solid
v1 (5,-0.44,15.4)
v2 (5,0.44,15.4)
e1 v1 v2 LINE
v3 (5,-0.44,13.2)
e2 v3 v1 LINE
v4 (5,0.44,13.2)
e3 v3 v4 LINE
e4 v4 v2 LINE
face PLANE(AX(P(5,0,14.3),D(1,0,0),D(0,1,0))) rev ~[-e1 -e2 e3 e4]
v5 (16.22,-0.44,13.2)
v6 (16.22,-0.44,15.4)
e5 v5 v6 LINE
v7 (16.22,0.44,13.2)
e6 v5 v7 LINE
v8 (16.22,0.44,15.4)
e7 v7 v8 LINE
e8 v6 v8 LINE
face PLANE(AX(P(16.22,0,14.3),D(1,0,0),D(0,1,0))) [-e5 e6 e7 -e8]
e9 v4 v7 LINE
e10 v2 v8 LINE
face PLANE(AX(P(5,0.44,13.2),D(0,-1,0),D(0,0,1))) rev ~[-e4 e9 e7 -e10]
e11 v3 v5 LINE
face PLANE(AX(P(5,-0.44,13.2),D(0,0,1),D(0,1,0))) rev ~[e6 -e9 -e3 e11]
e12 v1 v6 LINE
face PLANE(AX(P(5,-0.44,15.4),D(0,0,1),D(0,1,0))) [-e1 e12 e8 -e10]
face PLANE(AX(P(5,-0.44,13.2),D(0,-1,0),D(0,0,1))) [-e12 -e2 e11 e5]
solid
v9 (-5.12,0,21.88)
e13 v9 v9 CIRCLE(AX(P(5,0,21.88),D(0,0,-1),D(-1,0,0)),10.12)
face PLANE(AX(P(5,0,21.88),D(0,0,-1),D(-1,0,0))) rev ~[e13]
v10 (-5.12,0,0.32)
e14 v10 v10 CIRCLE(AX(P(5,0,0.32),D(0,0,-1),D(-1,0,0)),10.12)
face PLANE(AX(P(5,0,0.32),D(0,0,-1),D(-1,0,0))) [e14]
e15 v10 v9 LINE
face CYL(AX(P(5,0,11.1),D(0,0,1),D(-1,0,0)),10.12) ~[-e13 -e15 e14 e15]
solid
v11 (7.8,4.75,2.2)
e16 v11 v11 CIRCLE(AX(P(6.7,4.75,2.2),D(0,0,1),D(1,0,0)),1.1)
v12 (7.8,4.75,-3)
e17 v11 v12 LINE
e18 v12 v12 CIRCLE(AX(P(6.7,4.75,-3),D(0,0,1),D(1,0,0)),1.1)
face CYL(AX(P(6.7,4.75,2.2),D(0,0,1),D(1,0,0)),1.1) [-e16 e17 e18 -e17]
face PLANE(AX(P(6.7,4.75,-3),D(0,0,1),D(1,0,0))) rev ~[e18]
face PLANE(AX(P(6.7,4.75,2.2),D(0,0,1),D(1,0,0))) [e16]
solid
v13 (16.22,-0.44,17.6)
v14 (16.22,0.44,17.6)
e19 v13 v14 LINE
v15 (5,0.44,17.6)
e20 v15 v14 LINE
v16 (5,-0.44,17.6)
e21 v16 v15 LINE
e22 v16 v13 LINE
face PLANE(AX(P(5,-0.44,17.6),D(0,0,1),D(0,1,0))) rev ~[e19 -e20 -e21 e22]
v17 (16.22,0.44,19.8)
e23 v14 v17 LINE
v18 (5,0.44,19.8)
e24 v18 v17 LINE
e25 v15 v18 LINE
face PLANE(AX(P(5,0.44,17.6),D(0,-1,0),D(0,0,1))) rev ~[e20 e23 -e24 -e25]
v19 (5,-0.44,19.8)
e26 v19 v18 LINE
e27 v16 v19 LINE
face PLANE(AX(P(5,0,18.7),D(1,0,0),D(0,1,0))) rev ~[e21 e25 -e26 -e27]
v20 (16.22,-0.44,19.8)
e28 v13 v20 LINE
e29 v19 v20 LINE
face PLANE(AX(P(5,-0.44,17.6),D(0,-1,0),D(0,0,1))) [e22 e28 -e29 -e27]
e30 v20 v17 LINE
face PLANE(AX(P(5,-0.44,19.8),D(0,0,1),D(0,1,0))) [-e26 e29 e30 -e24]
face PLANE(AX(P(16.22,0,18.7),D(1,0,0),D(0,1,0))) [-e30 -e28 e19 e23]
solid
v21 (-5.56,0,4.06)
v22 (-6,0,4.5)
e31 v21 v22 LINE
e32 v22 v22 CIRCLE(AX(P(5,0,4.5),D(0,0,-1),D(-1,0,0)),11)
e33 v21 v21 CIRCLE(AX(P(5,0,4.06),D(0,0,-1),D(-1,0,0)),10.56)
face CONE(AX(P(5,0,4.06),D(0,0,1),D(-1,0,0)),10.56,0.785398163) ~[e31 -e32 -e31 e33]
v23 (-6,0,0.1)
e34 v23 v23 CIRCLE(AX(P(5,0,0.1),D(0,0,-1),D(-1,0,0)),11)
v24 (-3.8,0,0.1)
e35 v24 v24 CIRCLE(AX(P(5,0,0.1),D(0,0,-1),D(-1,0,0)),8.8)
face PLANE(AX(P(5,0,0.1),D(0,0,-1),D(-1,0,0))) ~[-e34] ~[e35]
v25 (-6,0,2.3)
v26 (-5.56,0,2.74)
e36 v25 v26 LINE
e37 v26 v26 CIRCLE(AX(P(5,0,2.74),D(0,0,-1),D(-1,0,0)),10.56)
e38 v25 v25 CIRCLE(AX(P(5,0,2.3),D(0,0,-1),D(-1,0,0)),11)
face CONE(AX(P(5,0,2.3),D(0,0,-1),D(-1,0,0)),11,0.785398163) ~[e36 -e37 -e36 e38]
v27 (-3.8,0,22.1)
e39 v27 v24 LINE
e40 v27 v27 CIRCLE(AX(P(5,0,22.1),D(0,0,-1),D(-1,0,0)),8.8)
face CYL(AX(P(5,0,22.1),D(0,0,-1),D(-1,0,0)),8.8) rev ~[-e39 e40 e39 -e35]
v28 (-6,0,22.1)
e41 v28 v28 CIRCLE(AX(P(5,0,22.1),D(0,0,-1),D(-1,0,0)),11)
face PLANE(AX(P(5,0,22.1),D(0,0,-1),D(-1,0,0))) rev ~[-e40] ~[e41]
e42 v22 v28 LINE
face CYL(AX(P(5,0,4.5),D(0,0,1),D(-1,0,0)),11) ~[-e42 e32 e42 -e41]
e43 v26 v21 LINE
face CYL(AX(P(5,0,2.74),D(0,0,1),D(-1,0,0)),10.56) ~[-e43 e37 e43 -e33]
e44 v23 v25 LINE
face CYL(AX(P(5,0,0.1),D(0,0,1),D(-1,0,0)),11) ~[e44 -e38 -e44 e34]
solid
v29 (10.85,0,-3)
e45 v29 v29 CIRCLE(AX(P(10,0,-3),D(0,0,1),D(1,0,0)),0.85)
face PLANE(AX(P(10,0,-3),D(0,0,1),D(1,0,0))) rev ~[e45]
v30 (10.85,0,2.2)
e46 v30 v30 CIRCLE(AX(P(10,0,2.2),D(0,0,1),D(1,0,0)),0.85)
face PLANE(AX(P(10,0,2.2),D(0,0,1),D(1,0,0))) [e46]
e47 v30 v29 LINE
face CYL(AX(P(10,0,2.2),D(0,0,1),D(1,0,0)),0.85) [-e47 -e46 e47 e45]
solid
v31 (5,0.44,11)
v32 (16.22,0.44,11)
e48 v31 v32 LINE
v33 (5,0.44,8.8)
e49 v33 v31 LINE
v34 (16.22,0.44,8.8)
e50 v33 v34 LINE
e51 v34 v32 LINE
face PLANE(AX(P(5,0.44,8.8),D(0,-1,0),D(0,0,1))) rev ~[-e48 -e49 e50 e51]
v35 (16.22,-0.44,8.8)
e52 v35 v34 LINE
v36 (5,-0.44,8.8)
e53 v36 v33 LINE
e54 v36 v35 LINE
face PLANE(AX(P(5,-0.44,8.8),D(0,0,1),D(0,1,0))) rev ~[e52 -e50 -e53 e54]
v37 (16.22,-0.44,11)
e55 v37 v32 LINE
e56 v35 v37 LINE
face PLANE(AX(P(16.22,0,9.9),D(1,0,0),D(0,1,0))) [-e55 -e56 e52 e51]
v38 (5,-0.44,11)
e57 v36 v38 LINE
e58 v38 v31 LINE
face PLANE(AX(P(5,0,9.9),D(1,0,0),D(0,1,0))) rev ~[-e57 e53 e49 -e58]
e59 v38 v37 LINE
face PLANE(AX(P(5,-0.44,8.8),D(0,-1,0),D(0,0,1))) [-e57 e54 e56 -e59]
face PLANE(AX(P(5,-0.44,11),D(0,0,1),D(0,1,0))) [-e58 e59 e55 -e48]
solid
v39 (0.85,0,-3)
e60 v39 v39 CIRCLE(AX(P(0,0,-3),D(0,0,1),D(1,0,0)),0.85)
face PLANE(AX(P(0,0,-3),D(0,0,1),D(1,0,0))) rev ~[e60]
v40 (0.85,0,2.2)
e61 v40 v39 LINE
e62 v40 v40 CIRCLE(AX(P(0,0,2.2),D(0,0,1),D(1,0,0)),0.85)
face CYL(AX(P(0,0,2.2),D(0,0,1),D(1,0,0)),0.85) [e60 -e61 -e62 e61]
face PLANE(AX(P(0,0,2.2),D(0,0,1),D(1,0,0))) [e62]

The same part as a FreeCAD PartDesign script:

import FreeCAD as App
import Part
import Sketcher

V = App.Vector
Q = App.Units.Quantity


def add_polygon(sketch, points):
    """Adds a closed chain of lines whose ends are joined by coincident constraints."""
    first, n = sketch.GeometryCount, len(points)
    for a, b in zip(points, points[1:] + points[:1]):
        sketch.addGeometry(Part.LineSegment(App.Vector(*a, 0), App.Vector(*b, 0)), False)
    for i in range(n):
        sketch.addConstraint(Sketcher.Constraint("Coincident", first + i, 2, first + (i + 1) % n, 1))

doc = App.newDocument("Part")
body = doc.addObject("PartDesign::Body", "Body")

sketch1 = body.newObject("Sketcher::SketchObject", "Sketch")
sketch1.AttachmentSupport = (doc.getObject("XZ_Plane"), [""])
sketch1.MapMode = "FlatFace"
add_polygon(sketch1, [(-6, 2.3), (-6, 0.1), (-3.8, 0.1), (-3.8, 22.1), (-6, 22.1), (-6, 4.5), (-5.6, 4.1), (-5.6, 2.7)])
sketch1.addGeometry(Part.LineSegment(V(5, 22.1, 0), V(5, 0.1, 0)), True)
sketch1.addConstraint(Sketcher.Constraint("Vertical", 0))
sketch1.addConstraint(Sketcher.Constraint("Horizontal", 1))
sketch1.addConstraint(Sketcher.Constraint("Vertical", 2))
sketch1.addConstraint(Sketcher.Constraint("Horizontal", 3))
sketch1.addConstraint(Sketcher.Constraint("Vertical", 4))
sketch1.addConstraint(Sketcher.Constraint("Vertical", 6))
sketch1.addConstraint(Sketcher.Constraint("Vertical", 8))
sketch1.addConstraint(Sketcher.Constraint("Perpendicular", 5, 7))
sketch1.addConstraint(Sketcher.Constraint("Horizontal", 3, 2, 8, 1))
sketch1.addConstraint(Sketcher.Constraint("Horizontal", 1, 2, 8, 2))
sketch1.addConstraint(Sketcher.Constraint("Vertical", 0, 2, 3, 2))
sketch1.addConstraint(Sketcher.Constraint("Equal", 3, 0))
sketch1.addConstraint(Sketcher.Constraint("Equal", 5, 7))
sketch1.addConstraint(Sketcher.Constraint("DistanceY", 2, 1, 2, 2, Q("22 mm")))
sketch1.addConstraint(Sketcher.Constraint("DistanceX", 1, 1, 1, 2, Q("2.2 mm")))
sketch1.addConstraint(Sketcher.Constraint("DistanceY", 4, 2, 4, 1, Q("17.6 mm")))
sketch1.addConstraint(Sketcher.Constraint("DistanceX", 0, 2, -1, 1, Q("6 mm")))
sketch1.addConstraint(Sketcher.Constraint("DistanceX", -1, 1, 8, 1, Q("5 mm")))
sketch1.addConstraint(Sketcher.Constraint("DistanceY", 6, 2, 6, 1, Q("1.32 mm")))
sketch1.addConstraint(Sketcher.Constraint("DistanceY", -1, 1, 0, 2, Q("0.1 mm")))
revolution = body.newObject("PartDesign::Revolution", "Revolution")
revolution.Profile = sketch1
revolution.ReferenceAxis = (sketch1, ["Axis0"])
revolution.Angle = 360
body2 = doc.addObject("PartDesign::Body", "Body001")

sketch2 = body2.newObject("Sketcher::SketchObject", "Sketch001")
sketch2.AttachmentSupport = (doc.getObject("XZ_Plane001"), [""])
sketch2.MapMode = "FlatFace"
add_polygon(sketch2, [(-5, 22), (-5, 0), (5, 0), (5, 22)])
sketch2.addGeometry(Part.LineSegment(V(5, 22, 0), V(5, 0, 0)), True)
sketch2.addConstraint(Sketcher.Constraint("Vertical", 0))
sketch2.addConstraint(Sketcher.Constraint("Horizontal", 1))
sketch2.addConstraint(Sketcher.Constraint("Vertical", 2))
sketch2.addConstraint(Sketcher.Constraint("Horizontal", 3))
sketch2.addConstraint(Sketcher.Constraint("Vertical", 4))
sketch2.addConstraint(Sketcher.Constraint("Coincident", 4, 1, 2, 2))
sketch2.addConstraint(Sketcher.Constraint("Horizontal", 0, 2, 4, 2))
sketch2.addConstraint(Sketcher.Constraint("DistanceX", -1, 1, 1, 2, Q("5 mm")))
sketch2.addConstraint(Sketcher.Constraint("DistanceX", 1, 1, 1, 2, Q("10.12 mm")))
sketch2.addConstraint(Sketcher.Constraint("DistanceY", 0, 2, 0, 1, Q("21.56 mm")))
sketch2.addConstraint(Sketcher.Constraint("DistanceY", -1, 1, 0, 2, Q("0.32 mm")))
revolution2 = body2.newObject("PartDesign::Revolution", "Revolution001")
revolution2.Profile = sketch2
revolution2.ReferenceAxis = (sketch2, ["Axis0"])
revolution2.Angle = 360
body3 = doc.addObject("PartDesign::Body", "Body002")
body3.AllowCompound = True

sketch3 = body3.newObject("Sketcher::SketchObject", "Sketch002")
sketch3.AttachmentSupport = (doc.getObject("XY_Plane002"), [""])
sketch3.MapMode = "FlatFace"
sketch3.AttachmentOffset = App.Placement(V(0, 0, 2.2), App.Rotation())
sketch3.addGeometry(Part.Circle(V(0, 0, 0), V(0, 0, 1), 0.8), False)
sketch3.addGeometry(Part.Circle(V(10, 0, 0), V(0, 0, 1), 0.8), False)
sketch3.addGeometry(Part.Circle(V(6.7, 4.8, 0), V(0, 0, 1), 1.1), False)
sketch3.addConstraint(Sketcher.Constraint("Coincident", 0, 3, -1, 1))
sketch3.addConstraint(Sketcher.Constraint("Equal", 0, 1))
sketch3.addConstraint(Sketcher.Constraint("PointOnObject", 1, 3, -1))
sketch3.addConstraint(Sketcher.Constraint("Diameter", 0, Q("1.7 mm")))
sketch3.addConstraint(Sketcher.Constraint("Diameter", 2, Q("2.2 mm")))
sketch3.addConstraint(Sketcher.Constraint("DistanceX", -1, 1, 1, 3, Q("10 mm")))
sketch3.addConstraint(Sketcher.Constraint("DistanceX", -1, 1, 2, 3, Q("6.7 mm")))
sketch3.addConstraint(Sketcher.Constraint("DistanceY", -1, 1, 2, 3, Q("4.75 mm")))
pad1 = body3.newObject("PartDesign::Pad", "Pad")
pad1.Profile = sketch3
pad1.Length = 5.2
pad1.Reversed = True
body4 = doc.addObject("PartDesign::Body", "Body003")
body4.AllowCompound = True

sketch4 = body4.newObject("Sketcher::SketchObject", "Sketch003")
sketch4.AttachmentSupport = (doc.getObject("YZ_Plane003"), [""])
sketch4.MapMode = "FlatFace"
sketch4.AttachmentOffset = App.Placement(V(0, 0, 5), App.Rotation())
add_polygon(sketch4, [(-0.4, 11), (-0.4, 8.8), (0.4, 8.8), (0.4, 11)])
add_polygon(sketch4, [(-0.4, 15.4), (-0.4, 13.2), (0.4, 13.2), (0.4, 15.4)])
add_polygon(sketch4, [(-0.4, 19.8), (-0.4, 17.6), (0.4, 17.6), (0.4, 19.8)])
sketch4.addConstraint(Sketcher.Constraint("Vertical", 0))
sketch4.addConstraint(Sketcher.Constraint("Horizontal", 1))
sketch4.addConstraint(Sketcher.Constraint("Vertical", 2))
sketch4.addConstraint(Sketcher.Constraint("Horizontal", 3))
sketch4.addConstraint(Sketcher.Constraint("Vertical", 4))
sketch4.addConstraint(Sketcher.Constraint("Horizontal", 5))
sketch4.addConstraint(Sketcher.Constraint("Vertical", 6))
sketch4.addConstraint(Sketcher.Constraint("Horizontal", 7))
sketch4.addConstraint(Sketcher.Constraint("Vertical", 8))
sketch4.addConstraint(Sketcher.Constraint("Horizontal", 9))
sketch4.addConstraint(Sketcher.Constraint("Vertical", 10))
sketch4.addConstraint(Sketcher.Constraint("Horizontal", 11))
sketch4.addConstraint(Sketcher.Constraint("Vertical", 3, 2, 4, 2))
sketch4.addConstraint(Sketcher.Constraint("Vertical", 2, 2, 5, 2))
sketch4.addConstraint(Sketcher.Constraint("Vertical", 7, 2, 8, 2))
sketch4.addConstraint(Sketcher.Constraint("Vertical", 6, 2, 9, 2))
sketch4.addConstraint(Sketcher.Constraint("Equal", 2, 4))
sketch4.addConstraint(Sketcher.Constraint("Equal", 6, 8))
sketch4.addConstraint(Sketcher.Constraint("DistanceY", 0, 2, 0, 1, Q("2.2 mm")))
sketch4.addConstraint(Sketcher.Constraint("DistanceY", -1, 1, 2, 2, Q("11 mm")))
sketch4.addConstraint(Sketcher.Constraint("DistanceX", 1, 1, 1, 2, Q("0.88 mm")))
sketch4.addConstraint(Sketcher.Constraint("DistanceY", -1, 1, 4, 2, Q("13.2 mm")))
sketch4.addConstraint(Sketcher.Constraint("DistanceY", -1, 1, 8, 2, Q("17.6 mm")))
sketch4.addConstraint(Sketcher.Constraint("DistanceX", 0, 2, -1, 1, Q("0.44 mm")))
pad2 = body4.newObject("PartDesign::Pad", "Pad001")
pad2.Profile = sketch4
pad2.Length = 11.22

doc.recompute()
